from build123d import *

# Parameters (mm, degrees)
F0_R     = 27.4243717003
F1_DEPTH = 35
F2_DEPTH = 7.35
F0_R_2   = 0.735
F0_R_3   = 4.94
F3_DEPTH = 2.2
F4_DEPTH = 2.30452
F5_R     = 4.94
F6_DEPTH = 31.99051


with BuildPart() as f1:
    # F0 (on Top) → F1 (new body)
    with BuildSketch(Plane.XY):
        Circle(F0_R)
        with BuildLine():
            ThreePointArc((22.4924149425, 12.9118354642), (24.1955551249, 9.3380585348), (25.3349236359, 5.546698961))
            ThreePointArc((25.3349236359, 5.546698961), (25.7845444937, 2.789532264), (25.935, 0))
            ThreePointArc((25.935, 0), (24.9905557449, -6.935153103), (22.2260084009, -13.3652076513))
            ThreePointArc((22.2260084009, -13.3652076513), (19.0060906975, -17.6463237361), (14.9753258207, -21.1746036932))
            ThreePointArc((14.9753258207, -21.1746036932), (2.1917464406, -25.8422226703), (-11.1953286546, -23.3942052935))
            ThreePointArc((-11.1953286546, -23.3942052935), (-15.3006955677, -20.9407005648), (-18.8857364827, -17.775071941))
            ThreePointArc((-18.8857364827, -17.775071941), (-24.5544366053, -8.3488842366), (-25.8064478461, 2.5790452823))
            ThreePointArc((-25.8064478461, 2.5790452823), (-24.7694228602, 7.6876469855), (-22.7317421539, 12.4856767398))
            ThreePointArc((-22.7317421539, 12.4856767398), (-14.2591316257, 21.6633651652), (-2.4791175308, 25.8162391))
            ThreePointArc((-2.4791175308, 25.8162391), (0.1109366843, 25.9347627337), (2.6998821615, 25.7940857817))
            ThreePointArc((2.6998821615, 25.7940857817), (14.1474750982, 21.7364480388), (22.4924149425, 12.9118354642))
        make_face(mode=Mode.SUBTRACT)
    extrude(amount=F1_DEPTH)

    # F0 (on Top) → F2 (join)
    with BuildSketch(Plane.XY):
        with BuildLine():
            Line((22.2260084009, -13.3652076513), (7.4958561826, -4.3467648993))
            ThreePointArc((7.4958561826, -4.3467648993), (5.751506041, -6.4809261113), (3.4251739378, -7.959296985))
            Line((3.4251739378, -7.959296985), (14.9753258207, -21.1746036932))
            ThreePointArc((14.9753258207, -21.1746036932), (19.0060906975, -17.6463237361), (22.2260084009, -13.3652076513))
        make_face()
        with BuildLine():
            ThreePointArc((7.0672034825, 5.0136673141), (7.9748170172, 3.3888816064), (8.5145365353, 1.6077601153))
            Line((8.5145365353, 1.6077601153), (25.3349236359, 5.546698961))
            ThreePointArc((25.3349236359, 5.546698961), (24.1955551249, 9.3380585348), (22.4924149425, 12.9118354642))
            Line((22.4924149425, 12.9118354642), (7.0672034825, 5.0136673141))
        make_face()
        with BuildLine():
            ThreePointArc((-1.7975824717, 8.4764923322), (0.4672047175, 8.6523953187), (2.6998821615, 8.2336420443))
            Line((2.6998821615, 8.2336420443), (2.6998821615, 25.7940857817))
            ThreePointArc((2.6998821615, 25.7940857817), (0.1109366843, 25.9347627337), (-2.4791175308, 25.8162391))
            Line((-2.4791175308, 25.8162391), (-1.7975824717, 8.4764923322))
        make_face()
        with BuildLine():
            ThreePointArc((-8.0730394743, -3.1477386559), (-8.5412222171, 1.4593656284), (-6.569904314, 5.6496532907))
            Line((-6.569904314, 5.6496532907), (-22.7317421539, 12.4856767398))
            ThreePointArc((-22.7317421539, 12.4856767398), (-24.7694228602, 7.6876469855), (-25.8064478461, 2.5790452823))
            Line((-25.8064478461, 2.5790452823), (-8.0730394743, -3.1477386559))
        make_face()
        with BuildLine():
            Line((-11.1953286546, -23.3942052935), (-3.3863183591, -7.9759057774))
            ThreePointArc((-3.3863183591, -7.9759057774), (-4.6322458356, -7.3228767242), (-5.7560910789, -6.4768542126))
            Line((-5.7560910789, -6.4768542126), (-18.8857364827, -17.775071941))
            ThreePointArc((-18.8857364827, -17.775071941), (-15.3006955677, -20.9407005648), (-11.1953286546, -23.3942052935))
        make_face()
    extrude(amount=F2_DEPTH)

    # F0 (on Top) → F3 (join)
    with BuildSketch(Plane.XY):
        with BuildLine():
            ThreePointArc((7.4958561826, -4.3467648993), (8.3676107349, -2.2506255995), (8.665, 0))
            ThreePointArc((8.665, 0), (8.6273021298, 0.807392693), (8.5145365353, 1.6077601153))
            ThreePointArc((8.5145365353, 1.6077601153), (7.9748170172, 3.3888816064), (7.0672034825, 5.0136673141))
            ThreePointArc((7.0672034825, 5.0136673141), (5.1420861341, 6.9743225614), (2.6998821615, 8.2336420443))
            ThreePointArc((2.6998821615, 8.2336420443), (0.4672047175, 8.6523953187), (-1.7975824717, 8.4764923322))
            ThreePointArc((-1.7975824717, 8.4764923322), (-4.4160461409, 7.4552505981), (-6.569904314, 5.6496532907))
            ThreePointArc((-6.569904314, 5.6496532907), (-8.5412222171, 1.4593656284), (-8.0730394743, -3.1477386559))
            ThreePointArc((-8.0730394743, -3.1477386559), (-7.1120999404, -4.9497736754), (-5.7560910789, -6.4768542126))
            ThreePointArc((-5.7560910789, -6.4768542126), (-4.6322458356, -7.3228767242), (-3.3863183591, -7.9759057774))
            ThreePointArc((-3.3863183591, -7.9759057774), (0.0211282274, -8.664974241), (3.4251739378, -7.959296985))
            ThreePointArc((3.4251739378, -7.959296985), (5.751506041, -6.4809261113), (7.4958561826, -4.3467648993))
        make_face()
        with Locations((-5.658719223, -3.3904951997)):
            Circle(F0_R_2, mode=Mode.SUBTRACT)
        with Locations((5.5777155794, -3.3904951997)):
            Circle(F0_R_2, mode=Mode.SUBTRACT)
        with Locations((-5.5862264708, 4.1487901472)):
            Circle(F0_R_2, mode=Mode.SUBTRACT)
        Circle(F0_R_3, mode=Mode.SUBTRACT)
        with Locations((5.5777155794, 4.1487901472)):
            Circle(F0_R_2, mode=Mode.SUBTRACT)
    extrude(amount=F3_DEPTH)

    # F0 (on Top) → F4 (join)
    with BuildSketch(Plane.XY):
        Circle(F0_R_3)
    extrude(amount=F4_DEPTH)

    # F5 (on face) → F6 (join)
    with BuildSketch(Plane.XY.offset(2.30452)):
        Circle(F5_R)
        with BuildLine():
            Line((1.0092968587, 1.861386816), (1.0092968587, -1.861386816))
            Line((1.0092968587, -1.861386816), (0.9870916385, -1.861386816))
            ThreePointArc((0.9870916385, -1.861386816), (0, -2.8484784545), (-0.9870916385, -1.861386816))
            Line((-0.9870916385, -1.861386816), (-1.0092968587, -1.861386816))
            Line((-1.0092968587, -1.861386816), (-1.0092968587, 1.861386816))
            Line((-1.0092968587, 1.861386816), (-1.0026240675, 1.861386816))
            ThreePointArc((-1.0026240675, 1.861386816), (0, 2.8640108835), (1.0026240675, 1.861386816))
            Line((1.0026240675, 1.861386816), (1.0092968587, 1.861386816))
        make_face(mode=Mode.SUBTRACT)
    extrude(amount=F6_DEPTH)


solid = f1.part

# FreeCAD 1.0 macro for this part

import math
import FreeCAD as App
import Part
import Sketcher

doc = App.newDocument("Part")
body = doc.addObject("PartDesign::Body", "Body")

# Sketch on XY plane
sketch1 = body.newObject("Sketcher::SketchObject", "Sketch")
sketch1.AttachmentSupport = (doc.getObject("XY_Plane"), [""])
sketch1.MapMode = "FlatFace"
sketch1.addGeometry([
    Part.Circle(App.Vector(0, 0, 0), App.Vector(0, 0, 1), 27),  # 0
    Part.ArcOfCircle(Part.Circle(App.Vector(0, 0, 0), App.Vector(0, 0, 1), 26), math.radians(30), math.radians(84)),  # 1
    Part.ArcOfCircle(Part.Circle(App.Vector(0, 0, 0), App.Vector(0, 0, 1), 26), math.radians(12.35), math.radians(29.86)),  # 2
    Part.ArcOfCircle(Part.Circle(App.Vector(0, 0, 0), App.Vector(0, 0, 1), 26), math.radians(0), math.radians(12.35)),  # 3
    Part.ArcOfCircle(Part.Circle(App.Vector(0, 0, 0), App.Vector(0, 0, 1), 26), math.radians(-31), math.radians(0)),  # 4
    Part.ArcOfCircle(Part.Circle(App.Vector(0, 0, 0), App.Vector(0, 0, 1), 26), math.radians(-55), math.radians(-31)),  # 5
    Part.ArcOfCircle(Part.Circle(App.Vector(0, 0, 0), App.Vector(0, 0, 1), 26), math.radians(-116), math.radians(-55)),  # 6
    Part.ArcOfCircle(Part.Circle(App.Vector(0, 0, 0), App.Vector(0, 0, 1), 26), math.radians(-137), math.radians(-116)),  # 7
    Part.ArcOfCircle(Part.Circle(App.Vector(0, 0, 0), App.Vector(0, 0, 1), 26), math.radians(174), math.radians(223)),  # 8
    Part.ArcOfCircle(Part.Circle(App.Vector(0, 0, 0), App.Vector(0, 0, 1), 26), math.radians(151), math.radians(174)),  # 9
    Part.ArcOfCircle(Part.Circle(App.Vector(0, 0, 0), App.Vector(0, 0, 1), 26), math.radians(95), math.radians(151)),  # 10
    Part.ArcOfCircle(Part.Circle(App.Vector(0, 0, 0), App.Vector(0, 0, 1), 26), math.radians(84.02), math.radians(95.49)),  # 11
], False)
sketch1.addConstraint([
    Sketcher.Constraint("Tangent", 1, 1, 2, 2),
    Sketcher.Constraint("Tangent", 2, 1, 3, 2),
    Sketcher.Constraint("Tangent", 3, 1, 4, 2),
    Sketcher.Constraint("Tangent", 4, 1, 5, 2),
    Sketcher.Constraint("Tangent", 5, 1, 6, 2),
    Sketcher.Constraint("Tangent", 6, 1, 7, 2),
    Sketcher.Constraint("Tangent", 7, 1, 8, 2),
    Sketcher.Constraint("Tangent", 8, 1, 9, 2),
    Sketcher.Constraint("Tangent", 9, 1, 10, 2),
    Sketcher.Constraint("Tangent", 10, 1, 11, 2),
    Sketcher.Constraint("Tangent", 11, 1, 1, 2),
    Sketcher.Constraint("Coincident", 0, 3, -1, 1),
    Sketcher.Constraint("Coincident", 1, 3, -1, 1),
    Sketcher.Constraint("Coincident", 3, 3, -1, 1),
    Sketcher.Constraint("Coincident", 5, 3, -1, 1),
    Sketcher.Constraint("Coincident", 7, 3, -1, 1),
    Sketcher.Constraint("Coincident", 9, 3, -1, 1),
    Sketcher.Constraint("PointOnObject", 3, 1, -1),
    Sketcher.Constraint("Radius", 1, 25.935),
    Sketcher.Constraint("Diameter", 0, 54.848743),
    Sketcher.Constraint("DistanceX", 10, 1, 11, 1, 5.179),
    Sketcher.Constraint("DistanceY", -1, 1, 2, 1, 5.546699),
    Sketcher.Constraint("DistanceX", -1, 1, 4, 1, 22.226008),
    Sketcher.Constraint("DistanceX", 6, 1, -1, 1, 11.195329),
    Sketcher.Constraint("DistanceY", 7, 1, -1, 1, 17.775072),
    Sketcher.Constraint("DistanceY", -1, 1, 10, 1, 25.816239),
    Sketcher.Constraint("DistanceX", 1, 1, 2, 1, 2.842509),
    Sketcher.Constraint("DistanceX", 8, 1, 7, 1, 6.920711),
    Sketcher.Constraint("DistanceY", 8, 1, 9, 1, 9.906631),
    Sketcher.Constraint("DistanceX", -1, 1, 5, 1, 14.975326),
])
pad1 = body.newObject("PartDesign::Pad", "Pad")
pad1.Profile = sketch1
pad1.Length = 35

# Sketch on XY plane
sketch2 = body.newObject("Sketcher::SketchObject", "Sketch001")
sketch2.AttachmentSupport = (doc.getObject("XY_Plane"), [""])
sketch2.MapMode = "FlatFace"
sketch2.addGeometry([
    Part.LineSegment(App.Vector(22.2, -13.4, 0), App.Vector(7.5, -4.3, 0)),  # 0
    Part.ArcOfCircle(Part.Circle(App.Vector(0, 0, 0), App.Vector(0, 0, 1), 8.7), math.radians(-67), math.radians(-30)),  # 1
    Part.LineSegment(App.Vector(3.4, -8, 0), App.Vector(15, -21.2, 0)),  # 2
    Part.ArcOfCircle(Part.Circle(App.Vector(0, 0, 0), App.Vector(0, 0, 1), 25.9), math.radians(-55), math.radians(-31)),  # 3
    Part.ArcOfCircle(Part.Circle(App.Vector(0, 0, 0), App.Vector(0, 0, 1), 8.7), math.radians(11), math.radians(35)),  # 4
    Part.LineSegment(App.Vector(8.5, 1.6, 0), App.Vector(25.3, 5.5, 0)),  # 5
    Part.ArcOfCircle(Part.Circle(App.Vector(0, 0, 0), App.Vector(0, 0, 1), 25.9), math.radians(12.35), math.radians(29.86)),  # 6
    Part.LineSegment(App.Vector(22.5, 12.9, 0), App.Vector(7.1, 5, 0)),  # 7
    Part.ArcOfCircle(Part.Circle(App.Vector(0, 0, 0), App.Vector(0, 0, 1), 8.7), math.radians(72), math.radians(102)),  # 8
    Part.LineSegment(App.Vector(2.7, 8.2, 0), App.Vector(2.7, 25.8, 0)),  # 9
    Part.ArcOfCircle(Part.Circle(App.Vector(0, 0, 0), App.Vector(0, 0, 1), 25.9), math.radians(84.02), math.radians(95.49)),  # 10
    Part.LineSegment(App.Vector(-2.5, 25.8, 0), App.Vector(-1.8, 8.5, 0)),  # 11
    Part.ArcOfCircle(Part.Circle(App.Vector(0, 0, 0), App.Vector(0, 0, 1), 8.7), math.radians(139), math.radians(201)),  # 12
    Part.LineSegment(App.Vector(-6.6, 5.6, 0), App.Vector(-22.7, 12.5, 0)),  # 13
    Part.ArcOfCircle(Part.Circle(App.Vector(0, 0, 0), App.Vector(0, 0, 1), 25.9), math.radians(151), math.radians(174)),  # 14
    Part.LineSegment(App.Vector(-25.8, 2.6, 0), App.Vector(-8.1, -3.1, 0)),  # 15
    Part.LineSegment(App.Vector(-11.2, -23.4, 0), App.Vector(-3.4, -8, 0)),  # 16
    Part.ArcOfCircle(Part.Circle(App.Vector(0, 0, 0), App.Vector(0, 0, 1), 8.7), math.radians(-131.63), math.radians(-113)),  # 17
    Part.LineSegment(App.Vector(-5.8, -6.5, 0), App.Vector(-18.9, -17.8, 0)),  # 18
    Part.ArcOfCircle(Part.Circle(App.Vector(0, 0, 0), App.Vector(0, 0, 1), 25.9), math.radians(-137), math.radians(-116)),  # 19
], False)
sketch2.addConstraint([
    Sketcher.Constraint("Coincident", 0, 2, 1, 2),
    Sketcher.Constraint("Coincident", 1, 1, 2, 1),
    Sketcher.Constraint("Coincident", 2, 2, 3, 1),
    Sketcher.Constraint("Coincident", 3, 2, 0, 1),
    Sketcher.Constraint("Coincident", 4, 1, 5, 1),
    Sketcher.Constraint("Coincident", 5, 2, 6, 1),
    Sketcher.Constraint("Coincident", 6, 2, 7, 1),
    Sketcher.Constraint("Coincident", 7, 2, 4, 2),
    Sketcher.Constraint("Coincident", 8, 1, 9, 1),
    Sketcher.Constraint("Coincident", 9, 2, 10, 1),
    Sketcher.Constraint("Coincident", 10, 2, 11, 1),
    Sketcher.Constraint("Coincident", 11, 2, 8, 2),
    Sketcher.Constraint("Coincident", 12, 1, 13, 1),
    Sketcher.Constraint("Coincident", 13, 2, 14, 1),
    Sketcher.Constraint("Coincident", 14, 2, 15, 1),
    Sketcher.Constraint("Coincident", 15, 2, 12, 2),
    Sketcher.Constraint("Coincident", 16, 2, 17, 2),
    Sketcher.Constraint("Coincident", 17, 1, 18, 1),
    Sketcher.Constraint("Coincident", 18, 2, 19, 1),
    Sketcher.Constraint("Coincident", 19, 2, 16, 1),
    Sketcher.Constraint("Vertical", 9),
    Sketcher.Constraint("Coincident", 1, 3, -1, 1),
    Sketcher.Constraint("Coincident", 3, 3, -1, 1),
    Sketcher.Constraint("Coincident", 4, 3, -1, 1),
    Sketcher.Constraint("Coincident", 6, 3, -1, 1),
    Sketcher.Constraint("Coincident", 8, 3, -1, 1),
    Sketcher.Constraint("Coincident", 10, 3, -1, 1),
    Sketcher.Constraint("Coincident", 12, 3, -1, 1),
    Sketcher.Constraint("Coincident", 14, 3, -1, 1),
    Sketcher.Constraint("Coincident", 17, 3, -1, 1),
    Sketcher.Constraint("Coincident", 19, 3, -1, 1),
    Sketcher.Constraint("Equal", 1, 4),
    Sketcher.Constraint("Equal", 3, 6),
    Sketcher.Constraint("Equal", 4, 8),
    Sketcher.Constraint("Equal", 6, 10),
    Sketcher.Constraint("Equal", 8, 12),
    Sketcher.Constraint("Equal", 10, 14),
    Sketcher.Constraint("Equal", 12, 17),
    Sketcher.Constraint("Equal", 14, 19),
    Sketcher.Constraint("Radius", 1, 8.665),
    Sketcher.Constraint("Radius", 3, 25.935),
    Sketcher.Constraint("DistanceX", 10, 2, 9, 2, 5.179),
    Sketcher.Constraint("DistanceY", -1, 1, 5, 2, 5.546699),
    Sketcher.Constraint("DistanceY", 0, 2, 6, 2, 17.2586),
    Sketcher.Constraint("DistanceY", 19, 2, 16, 2, 15.4183),
    Sketcher.Constraint("Distance", 7, 17.329692),
    Sketcher.Constraint("Distance", 13, 17.548112),
    Sketcher.Constraint("DistanceY", 9, 1, 9, 2, 17.560444),
    Sketcher.Constraint("DistanceX", -1, 1, 3, 2, 22.226008),
    Sketcher.Constraint("DistanceY", -1, 1, 4, 1, 1.60776),
    Sketcher.Constraint("DistanceX", 15, 2, -1, 1, 8.073039),
    Sketcher.Constraint("DistanceX", 16, 2, -1, 1, 3.386318),
    Sketcher.Constraint("DistanceX", 17, 1, -1, 1, 5.756091),
    Sketcher.Constraint("DistanceY", 18, 2, -1, 1, 17.775072),
    Sketcher.Constraint("DistanceX", 1, 1, 2, 2, 11.550152),
    Sketcher.Constraint("DistanceX", 0, 2, 2, 2, 7.47947),
    Sketcher.Constraint("DistanceY", 2, 2, 0, 2, 16.827839),
    Sketcher.Constraint("DistanceY", 8, 1, 11, 2, 0.24285),
    Sketcher.Constraint("DistanceX", 12, 1, 11, 2, 4.772322),
    Sketcher.Constraint("DistanceY", 14, 2, 13, 2, 9.906631),
])
pad2 = body.newObject("PartDesign::Pad", "Pad001")
pad2.Profile = sketch2
pad2.Length = 7.35

# Sketch on XY plane
sketch3 = body.newObject("Sketcher::SketchObject", "Sketch002")
sketch3.AttachmentSupport = (doc.getObject("XY_Plane"), [""])
sketch3.MapMode = "FlatFace"
sketch3.addGeometry([
    Part.ArcOfCircle(Part.Circle(App.Vector(0, 0, 0), App.Vector(0, 0, 1), 8.7), math.radians(-30), math.radians(0)),  # 0
    Part.ArcOfCircle(Part.Circle(App.Vector(0, 0, 0), App.Vector(0, 0, 1), 8.7), math.radians(0), math.radians(10.69)),  # 1
    Part.ArcOfCircle(Part.Circle(App.Vector(0, 0, 0), App.Vector(0, 0, 1), 8.7), math.radians(11), math.radians(35)),  # 2
    Part.ArcOfCircle(Part.Circle(App.Vector(0, 0, 0), App.Vector(0, 0, 1), 8.7), math.radians(35), math.radians(72)),  # 3
    Part.ArcOfCircle(Part.Circle(App.Vector(0, 0, 0), App.Vector(0, 0, 1), 8.7), math.radians(72), math.radians(102)),  # 4
    Part.ArcOfCircle(Part.Circle(App.Vector(0, 0, 0), App.Vector(0, 0, 1), 8.7), math.radians(102), math.radians(139)),  # 5
    Part.ArcOfCircle(Part.Circle(App.Vector(0, 0, 0), App.Vector(0, 0, 1), 8.7), math.radians(139), math.radians(201)),  # 6
    Part.ArcOfCircle(Part.Circle(App.Vector(0, 0, 0), App.Vector(0, 0, 1), 8.7), math.radians(-159), math.radians(-132)),  # 7
    Part.ArcOfCircle(Part.Circle(App.Vector(0, 0, 0), App.Vector(0, 0, 1), 8.7), math.radians(-131.63), math.radians(-113)),  # 8
    Part.ArcOfCircle(Part.Circle(App.Vector(0, 0, 0), App.Vector(0, 0, 1), 8.7), math.radians(-113), math.radians(-67)),  # 9
    Part.ArcOfCircle(Part.Circle(App.Vector(0, 0, 0), App.Vector(0, 0, 1), 8.7), math.radians(-67), math.radians(-30)),  # 10
    Part.Circle(App.Vector(-5.7, -3.4, 0), App.Vector(0, 0, 1), 0.7),  # 11
    Part.Circle(App.Vector(5.6, -3.4, 0), App.Vector(0, 0, 1), 0.7),  # 12
    Part.Circle(App.Vector(-5.6, 4.1, 0), App.Vector(0, 0, 1), 0.7),  # 13
    Part.Circle(App.Vector(0, 0, 0), App.Vector(0, 0, 1), 4.9),  # 14
    Part.Circle(App.Vector(5.6, 4.1, 0), App.Vector(0, 0, 1), 0.7),  # 15
], False)
sketch3.addConstraint([
    Sketcher.Constraint("Tangent", 0, 2, 1, 1),
    Sketcher.Constraint("Tangent", 1, 2, 2, 1),
    Sketcher.Constraint("Tangent", 2, 2, 3, 1),
    Sketcher.Constraint("Tangent", 3, 2, 4, 1),
    Sketcher.Constraint("Tangent", 4, 2, 5, 1),
    Sketcher.Constraint("Tangent", 5, 2, 6, 1),
    Sketcher.Constraint("Tangent", 6, 2, 7, 1),
    Sketcher.Constraint("Tangent", 7, 2, 8, 1),
    Sketcher.Constraint("Tangent", 8, 2, 9, 1),
    Sketcher.Constraint("Tangent", 9, 2, 10, 1),
    Sketcher.Constraint("Tangent", 10, 2, 0, 1),
    Sketcher.Constraint("Coincident", 0, 3, -1, 1),
    Sketcher.Constraint("Coincident", 2, 3, -1, 1),
    Sketcher.Constraint("Coincident", 4, 3, -1, 1),
    Sketcher.Constraint("Coincident", 6, 3, -1, 1),
    Sketcher.Constraint("Coincident", 8, 3, -1, 1),
    Sketcher.Constraint("Coincident", 14, 3, -1, 1),
    Sketcher.Constraint("Equal", 11, 12),
    Sketcher.Constraint("Equal", 12, 13),
    Sketcher.Constraint("Equal", 13, 15),
    Sketcher.Constraint("PointOnObject", 0, 2, -1),
    Sketcher.Constraint("Horizontal", 11, 3, 12, 3),
    Sketcher.Constraint("Horizontal", 13, 3, 15, 3),
    Sketcher.Constraint("Vertical", 12, 3, 15, 3),
    Sketcher.Constraint("Diameter", 11, 1.47),
    Sketcher.Constraint("Diameter", 14, 9.88),
    Sketcher.Constraint("Radius", 0, 8.665),
    Sketcher.Constraint("DistanceX", 4, 2, 15, 3, 7.375298),
    Sketcher.Constraint("DistanceX", 11, 3, 8, 2, 2.272401),
    Sketcher.Constraint("DistanceY", 9, 2, 12, 3, 4.568802),
    Sketcher.Constraint("DistanceX", 11, 3, -1, 1, 5.658719),
    Sketcher.Constraint("DistanceY", -1, 1, 13, 3, 4.14879),
    Sketcher.Constraint("DistanceY", -1, 1, 1, 2, 1.60776),
    Sketcher.Constraint("DistanceX", 6, 2, -1, 1, 8.073039),
    Sketcher.Constraint("DistanceX", 7, 2, -1, 1, 5.756091),
    Sketcher.Constraint("DistanceX", 15, 3, 1, 2, 2.936821),
    Sketcher.Constraint("DistanceY", 15, 3, 3, 2, 4.084852),
    Sketcher.Constraint("DistanceX", 3, 2, 2, 2, 4.367321),
    Sketcher.Constraint("DistanceX", 5, 2, 4, 2, 4.772322),
    Sketcher.Constraint("DistanceY", 7, 2, 11, 3, 3.086359),
    Sketcher.Constraint("DistanceX", 12, 3, 10, 2, 1.918141),
    Sketcher.Constraint("DistanceX", 13, 3, -1, 1, 5.586226),
])
pad3 = body.newObject("PartDesign::Pad", "Pad002")
pad3.Profile = sketch3
pad3.Length = 2.2

# Sketch on XY plane
sketch4 = body.newObject("Sketcher::SketchObject", "Sketch003")
sketch4.AttachmentSupport = (doc.getObject("XY_Plane"), [""])
sketch4.MapMode = "FlatFace"
sketch4.addGeometry(Part.Circle(App.Vector(0, 0, 0), App.Vector(0, 0, 1), 4.9), False)
sketch4.addConstraint([
    Sketcher.Constraint("Coincident", 0, 3, -1, 1),
    Sketcher.Constraint("Diameter", 0, 9.88),
])
pad4 = body.newObject("PartDesign::Pad", "Pad003")
pad4.Profile = sketch4
pad4.Length = 2.30452

# Sketch on XY plane
sketch5 = body.newObject("Sketcher::SketchObject", "Sketch004")
sketch5.AttachmentSupport = (doc.getObject("XY_Plane"), [""])
sketch5.MapMode = "FlatFace"
sketch5.AttachmentOffset = App.Placement(App.Vector(0, 0, 2.30452), App.Rotation())
sketch5.addGeometry([
    Part.Circle(App.Vector(0, 0, 0), App.Vector(0, 0, 1), 4.94),  # 0
    Part.LineSegment(App.Vector(1.003, 1.861, 0), App.Vector(1.009, 1.861, 0)),  # 1
    Part.LineSegment(App.Vector(1.009, 1.861, 0), App.Vector(1.009, -1.861, 0)),  # 2
    Part.LineSegment(App.Vector(1.009, -1.861, 0), App.Vector(0.987, -1.861, 0)),  # 3
    Part.ArcOfCircle(Part.Circle(App.Vector(0, -1.861, 0), App.Vector(0, 0, 1), 0.987), math.radians(180), math.radians(360)),  # 4
    Part.LineSegment(App.Vector(-0.987, -1.861, 0), App.Vector(-1.009, -1.861, 0)),  # 5
    Part.LineSegment(App.Vector(-1.009, -1.861, 0), App.Vector(-1.009, 1.861, 0)),  # 6
    Part.LineSegment(App.Vector(-1.009, 1.861, 0), App.Vector(-1.003, 1.861, 0)),  # 7
    Part.ArcOfCircle(Part.Circle(App.Vector(0, 1.861, 0), App.Vector(0, 0, 1), 1.003), math.radians(0), math.radians(180)),  # 8
], False)
sketch5.addConstraint([
    Sketcher.Constraint("Coincident", 1, 2, 2, 1),
    Sketcher.Constraint("Coincident", 2, 2, 3, 1),
    Sketcher.Constraint("Coincident", 3, 2, 4, 2),
    Sketcher.Constraint("Coincident", 4, 1, 5, 1),
    Sketcher.Constraint("Coincident", 5, 2, 6, 1),
    Sketcher.Constraint("Coincident", 6, 2, 7, 1),
    Sketcher.Constraint("Coincident", 7, 2, 8, 2),
    Sketcher.Constraint("Coincident", 8, 1, 1, 1),
    Sketcher.Constraint("Horizontal", 1),
    Sketcher.Constraint("Vertical", 2),
    Sketcher.Constraint("Horizontal", 3),
    Sketcher.Constraint("Horizontal", 5),
    Sketcher.Constraint("Vertical", 6),
    Sketcher.Constraint("Horizontal", 7),
    Sketcher.Constraint("Coincident", 0, 3, -1, 1),
    Sketcher.Constraint("Symmetric", 4, 3, 8, 3, -1, 1),
    Sketcher.Constraint("Symmetric", 1, 2, 5, 2, -1, 1),
    Sketcher.Constraint("Symmetric", 3, 2, 4, 1, -2),
    Sketcher.Constraint("Horizontal", 8, 3, 1, 2),
    Sketcher.Constraint("Horizontal", 1, 2, 6, 2),
    Sketcher.Constraint("Diameter", 0, 9.88),
    Sketcher.Constraint("Radius", 4, 0.987092),
    Sketcher.Constraint("Radius", 8, 1.002624),
    Sketcher.Constraint("DistanceX", 1, 1, 1, 2, 0.006673),
    Sketcher.Constraint("DistanceY", 2, 2, 2, 1, 3.722774),
])
pad5 = body.newObject("PartDesign::Pad", "Pad004")
pad5.Profile = sketch5
pad5.Length = 31.99051

doc.recompute()
